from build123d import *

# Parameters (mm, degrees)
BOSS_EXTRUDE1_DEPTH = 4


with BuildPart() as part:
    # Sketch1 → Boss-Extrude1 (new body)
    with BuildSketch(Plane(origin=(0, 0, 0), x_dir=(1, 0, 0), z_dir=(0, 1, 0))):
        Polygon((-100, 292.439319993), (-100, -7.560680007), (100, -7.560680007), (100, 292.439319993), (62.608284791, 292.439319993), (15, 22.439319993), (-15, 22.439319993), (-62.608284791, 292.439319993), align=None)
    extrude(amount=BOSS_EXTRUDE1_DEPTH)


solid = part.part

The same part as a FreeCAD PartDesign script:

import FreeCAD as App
import Part
import Sketcher
from FreeCAD import Vector
Q = App.Units.Quantity

doc = App.newDocument("Part")
body = doc.addObject("PartDesign::Body", "Body")

# Sketch on XZ plane
sketch1 = body.newObject("Sketcher::SketchObject", "Sketch")
sketch1.AttachmentSupport = (doc.getObject("XZ_Plane"), [""])
sketch1.MapMode = "FlatFace"
sketch1.addGeometry([
    Part.LineSegment(Vector(-100, -292, 0), Vector(-100, 8, 0)),  # 0
    Part.LineSegment(Vector(-100, 8, 0), Vector(100, 8, 0)),  # 1
    Part.LineSegment(Vector(100, 8, 0), Vector(100, -292, 0)),  # 2
    Part.LineSegment(Vector(100, -292, 0), Vector(63, -292, 0)),  # 3
    Part.LineSegment(Vector(63, -292, 0), Vector(15, -22, 0)),  # 4
    Part.LineSegment(Vector(15, -22, 0), Vector(-15, -22, 0)),  # 5
    Part.LineSegment(Vector(-15, -22, 0), Vector(-63, -292, 0)),  # 6
    Part.LineSegment(Vector(-63, -292, 0), Vector(-100, -292, 0)),  # 7
], False)
sketch1.addConstraint([
    Sketcher.Constraint("Coincident", 0, 2, 1, 1),
    Sketcher.Constraint("Coincident", 1, 2, 2, 1),
    Sketcher.Constraint("Coincident", 2, 2, 3, 1),
    Sketcher.Constraint("Coincident", 3, 2, 4, 1),
    Sketcher.Constraint("Coincident", 4, 2, 5, 1),
    Sketcher.Constraint("Coincident", 5, 2, 6, 1),
    Sketcher.Constraint("Coincident", 6, 2, 7, 1),
    Sketcher.Constraint("Coincident", 7, 2, 0, 1),
    Sketcher.Constraint("Vertical", 0),
    Sketcher.Constraint("Horizontal", 1),
    Sketcher.Constraint("Vertical", 2),
    Sketcher.Constraint("Horizontal", 3),
    Sketcher.Constraint("Horizontal", 5),
    Sketcher.Constraint("Horizontal", 7),
    Sketcher.Constraint("Symmetric", 3, 2, 6, 2, -2),
    Sketcher.Constraint("Equal", 3, 7),
    Sketcher.Constraint("Equal", 4, 6),
    Sketcher.Constraint("DistanceX", 1, 1, 1, 2, Q("200 mm")),
    Sketcher.Constraint("DistanceX", 5, 2, 5, 1, Q("30 mm")),
    Sketcher.Constraint("DistanceY", 0, 1, 0, 2, Q("300 mm")),
    Sketcher.Constraint("Angle", 4, Q("100 deg")),
    Sketcher.Constraint("DistanceY", 4, 2, 1, 2, Q("30 mm")),
    Sketcher.Constraint("DistanceY", -1, 1, 0, 2, Q("7.56068 mm")),
])
pad1 = body.newObject("PartDesign::Pad", "Pad")
pad1.Profile = sketch1
pad1.Length = 4
pad1.Reversed = True

doc.recompute()
